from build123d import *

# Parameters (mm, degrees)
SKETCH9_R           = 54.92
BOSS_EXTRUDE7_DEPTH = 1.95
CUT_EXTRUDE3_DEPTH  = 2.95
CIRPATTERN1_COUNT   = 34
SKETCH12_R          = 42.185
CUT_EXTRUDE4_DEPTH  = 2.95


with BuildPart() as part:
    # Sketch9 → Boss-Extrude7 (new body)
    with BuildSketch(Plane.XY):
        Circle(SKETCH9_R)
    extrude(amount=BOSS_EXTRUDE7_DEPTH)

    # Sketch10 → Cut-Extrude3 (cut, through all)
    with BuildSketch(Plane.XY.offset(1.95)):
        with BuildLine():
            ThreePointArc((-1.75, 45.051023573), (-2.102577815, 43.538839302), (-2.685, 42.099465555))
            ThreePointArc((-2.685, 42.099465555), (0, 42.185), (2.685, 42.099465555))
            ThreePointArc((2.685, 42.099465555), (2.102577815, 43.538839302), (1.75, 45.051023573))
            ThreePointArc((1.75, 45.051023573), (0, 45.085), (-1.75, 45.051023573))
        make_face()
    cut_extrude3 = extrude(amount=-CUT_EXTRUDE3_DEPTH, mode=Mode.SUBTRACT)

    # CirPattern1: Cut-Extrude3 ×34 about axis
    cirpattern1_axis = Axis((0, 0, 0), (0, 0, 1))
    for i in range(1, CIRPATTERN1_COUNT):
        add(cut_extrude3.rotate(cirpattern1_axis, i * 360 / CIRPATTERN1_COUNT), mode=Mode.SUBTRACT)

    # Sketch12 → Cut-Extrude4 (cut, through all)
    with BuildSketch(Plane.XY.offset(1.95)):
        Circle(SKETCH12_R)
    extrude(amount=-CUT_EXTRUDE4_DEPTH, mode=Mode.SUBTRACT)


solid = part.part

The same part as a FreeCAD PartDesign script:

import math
import FreeCAD as App
import Part
import Sketcher
from FreeCAD import Vector
Q = App.Units.Quantity

doc = App.newDocument("Part")
body = doc.addObject("PartDesign::Body", "Body")

# Sketch on XY plane
sketch1 = body.newObject("Sketcher::SketchObject", "Sketch")
sketch1.AttachmentSupport = (doc.getObject("XY_Plane"), [""])
sketch1.MapMode = "FlatFace"
sketch1.addGeometry(Part.Circle(Vector(0, 0, 0), Vector(0, 0, 1), 54.92), False)
sketch1.addConstraint(Sketcher.Constraint("Coincident", 0, 3, -1, 1))
sketch1.addConstraint(Sketcher.Constraint("Diameter", 0, Q("109.84 mm")))
pad1 = body.newObject("PartDesign::Pad", "Pad")
pad1.Profile = sketch1
pad1.Length = 1.95

# Sketch on XY plane
sketch2 = body.newObject("Sketcher::SketchObject", "Sketch001")
sketch2.AttachmentSupport = (doc.getObject("XY_Plane"), [""])
sketch2.MapMode = "FlatFace"
sketch2.AttachmentOffset = App.Placement(Vector(0, 0, 1.95), App.Rotation())
sketch2.addGeometry(Part.ArcOfCircle(Part.Circle(Vector(-11.635684, 46.558754, 0), Vector(0, 0, 1), 10), math.radians(-26.482783), math.radians(-8.67173)), False)
sketch2.addGeometry(Part.ArcOfCircle(Part.Circle(Vector(0, 0, 0), Vector(0, 0, 1), 42.185), math.radians(86.350759), math.radians(93.649241)), False)
sketch2.addGeometry(Part.ArcOfCircle(Part.Circle(Vector(11.635684, 46.558754, 0), Vector(0, 0, 1), 10), math.radians(-171.32827), math.radians(-153.517217)), False)
sketch2.addGeometry(Part.ArcOfCircle(Part.Circle(Vector(0, 0, 0), Vector(0, 0, 1), 45.085), math.radians(87.775473), math.radians(92.224527)), False)
sketch2.addConstraint(Sketcher.Constraint("Coincident", 0, 1, 1, 2))
sketch2.addConstraint(Sketcher.Constraint("Coincident", 1, 1, 2, 2))
sketch2.addConstraint(Sketcher.Constraint("Coincident", 2, 1, 3, 1))
sketch2.addConstraint(Sketcher.Constraint("Coincident", 3, 2, 0, 2))
sketch2.addConstraint(Sketcher.Constraint("Coincident", 1, 3, -1, 1))
sketch2.addConstraint(Sketcher.Constraint("Coincident", 3, 3, -1, 1))
sketch2.addConstraint(Sketcher.Constraint("Equal", 0, 2))
sketch2.addConstraint(Sketcher.Constraint("Symmetric", 0, 3, 2, 3, -2))
sketch2.addConstraint(Sketcher.Constraint("Radius", 0, Q("10 mm")))
sketch2.addConstraint(Sketcher.Constraint("Radius", 1, Q("42.185 mm")))
sketch2.addConstraint(Sketcher.Constraint("Radius", 3, Q("45.085 mm")))
sketch2.addConstraint(Sketcher.Constraint("DistanceX", 3, 2, 2, 1, Q("3.5 mm")))
sketch2.addConstraint(Sketcher.Constraint("DistanceX", 0, 1, 1, 1, Q("5.37 mm")))
pocket1 = body.newObject("PartDesign::Pocket", "Pocket")
pocket1.Profile = sketch2
pocket1.Type = "ThroughAll"
doc.recompute()

polarpattern = body.newObject("PartDesign::PolarPattern", "PolarPattern")
polarpattern.Originals = [pocket1]
polarpattern.Axis = (doc.getObject("Z_Axis"), [""])
polarpattern.Angle = 360
polarpattern.Occurrences = 34
body.Tip = polarpattern

# Sketch on XY plane
sketch3 = body.newObject("Sketcher::SketchObject", "Sketch002")
sketch3.AttachmentSupport = (doc.getObject("XY_Plane"), [""])
sketch3.MapMode = "FlatFace"
sketch3.AttachmentOffset = App.Placement(Vector(0, 0, 1.95), App.Rotation())
sketch3.addGeometry(Part.Circle(Vector(0, 0, 0), Vector(0, 0, 1), 42.185), False)
sketch3.addConstraint(Sketcher.Constraint("Coincident", 0, 3, -1, 1))
sketch3.addConstraint(Sketcher.Constraint("Diameter", 0, Q("84.37 mm")))
pocket2 = body.newObject("PartDesign::Pocket", "Pocket001")
pocket2.Profile = sketch3
pocket2.Type = "ThroughAll"

doc.recompute()
